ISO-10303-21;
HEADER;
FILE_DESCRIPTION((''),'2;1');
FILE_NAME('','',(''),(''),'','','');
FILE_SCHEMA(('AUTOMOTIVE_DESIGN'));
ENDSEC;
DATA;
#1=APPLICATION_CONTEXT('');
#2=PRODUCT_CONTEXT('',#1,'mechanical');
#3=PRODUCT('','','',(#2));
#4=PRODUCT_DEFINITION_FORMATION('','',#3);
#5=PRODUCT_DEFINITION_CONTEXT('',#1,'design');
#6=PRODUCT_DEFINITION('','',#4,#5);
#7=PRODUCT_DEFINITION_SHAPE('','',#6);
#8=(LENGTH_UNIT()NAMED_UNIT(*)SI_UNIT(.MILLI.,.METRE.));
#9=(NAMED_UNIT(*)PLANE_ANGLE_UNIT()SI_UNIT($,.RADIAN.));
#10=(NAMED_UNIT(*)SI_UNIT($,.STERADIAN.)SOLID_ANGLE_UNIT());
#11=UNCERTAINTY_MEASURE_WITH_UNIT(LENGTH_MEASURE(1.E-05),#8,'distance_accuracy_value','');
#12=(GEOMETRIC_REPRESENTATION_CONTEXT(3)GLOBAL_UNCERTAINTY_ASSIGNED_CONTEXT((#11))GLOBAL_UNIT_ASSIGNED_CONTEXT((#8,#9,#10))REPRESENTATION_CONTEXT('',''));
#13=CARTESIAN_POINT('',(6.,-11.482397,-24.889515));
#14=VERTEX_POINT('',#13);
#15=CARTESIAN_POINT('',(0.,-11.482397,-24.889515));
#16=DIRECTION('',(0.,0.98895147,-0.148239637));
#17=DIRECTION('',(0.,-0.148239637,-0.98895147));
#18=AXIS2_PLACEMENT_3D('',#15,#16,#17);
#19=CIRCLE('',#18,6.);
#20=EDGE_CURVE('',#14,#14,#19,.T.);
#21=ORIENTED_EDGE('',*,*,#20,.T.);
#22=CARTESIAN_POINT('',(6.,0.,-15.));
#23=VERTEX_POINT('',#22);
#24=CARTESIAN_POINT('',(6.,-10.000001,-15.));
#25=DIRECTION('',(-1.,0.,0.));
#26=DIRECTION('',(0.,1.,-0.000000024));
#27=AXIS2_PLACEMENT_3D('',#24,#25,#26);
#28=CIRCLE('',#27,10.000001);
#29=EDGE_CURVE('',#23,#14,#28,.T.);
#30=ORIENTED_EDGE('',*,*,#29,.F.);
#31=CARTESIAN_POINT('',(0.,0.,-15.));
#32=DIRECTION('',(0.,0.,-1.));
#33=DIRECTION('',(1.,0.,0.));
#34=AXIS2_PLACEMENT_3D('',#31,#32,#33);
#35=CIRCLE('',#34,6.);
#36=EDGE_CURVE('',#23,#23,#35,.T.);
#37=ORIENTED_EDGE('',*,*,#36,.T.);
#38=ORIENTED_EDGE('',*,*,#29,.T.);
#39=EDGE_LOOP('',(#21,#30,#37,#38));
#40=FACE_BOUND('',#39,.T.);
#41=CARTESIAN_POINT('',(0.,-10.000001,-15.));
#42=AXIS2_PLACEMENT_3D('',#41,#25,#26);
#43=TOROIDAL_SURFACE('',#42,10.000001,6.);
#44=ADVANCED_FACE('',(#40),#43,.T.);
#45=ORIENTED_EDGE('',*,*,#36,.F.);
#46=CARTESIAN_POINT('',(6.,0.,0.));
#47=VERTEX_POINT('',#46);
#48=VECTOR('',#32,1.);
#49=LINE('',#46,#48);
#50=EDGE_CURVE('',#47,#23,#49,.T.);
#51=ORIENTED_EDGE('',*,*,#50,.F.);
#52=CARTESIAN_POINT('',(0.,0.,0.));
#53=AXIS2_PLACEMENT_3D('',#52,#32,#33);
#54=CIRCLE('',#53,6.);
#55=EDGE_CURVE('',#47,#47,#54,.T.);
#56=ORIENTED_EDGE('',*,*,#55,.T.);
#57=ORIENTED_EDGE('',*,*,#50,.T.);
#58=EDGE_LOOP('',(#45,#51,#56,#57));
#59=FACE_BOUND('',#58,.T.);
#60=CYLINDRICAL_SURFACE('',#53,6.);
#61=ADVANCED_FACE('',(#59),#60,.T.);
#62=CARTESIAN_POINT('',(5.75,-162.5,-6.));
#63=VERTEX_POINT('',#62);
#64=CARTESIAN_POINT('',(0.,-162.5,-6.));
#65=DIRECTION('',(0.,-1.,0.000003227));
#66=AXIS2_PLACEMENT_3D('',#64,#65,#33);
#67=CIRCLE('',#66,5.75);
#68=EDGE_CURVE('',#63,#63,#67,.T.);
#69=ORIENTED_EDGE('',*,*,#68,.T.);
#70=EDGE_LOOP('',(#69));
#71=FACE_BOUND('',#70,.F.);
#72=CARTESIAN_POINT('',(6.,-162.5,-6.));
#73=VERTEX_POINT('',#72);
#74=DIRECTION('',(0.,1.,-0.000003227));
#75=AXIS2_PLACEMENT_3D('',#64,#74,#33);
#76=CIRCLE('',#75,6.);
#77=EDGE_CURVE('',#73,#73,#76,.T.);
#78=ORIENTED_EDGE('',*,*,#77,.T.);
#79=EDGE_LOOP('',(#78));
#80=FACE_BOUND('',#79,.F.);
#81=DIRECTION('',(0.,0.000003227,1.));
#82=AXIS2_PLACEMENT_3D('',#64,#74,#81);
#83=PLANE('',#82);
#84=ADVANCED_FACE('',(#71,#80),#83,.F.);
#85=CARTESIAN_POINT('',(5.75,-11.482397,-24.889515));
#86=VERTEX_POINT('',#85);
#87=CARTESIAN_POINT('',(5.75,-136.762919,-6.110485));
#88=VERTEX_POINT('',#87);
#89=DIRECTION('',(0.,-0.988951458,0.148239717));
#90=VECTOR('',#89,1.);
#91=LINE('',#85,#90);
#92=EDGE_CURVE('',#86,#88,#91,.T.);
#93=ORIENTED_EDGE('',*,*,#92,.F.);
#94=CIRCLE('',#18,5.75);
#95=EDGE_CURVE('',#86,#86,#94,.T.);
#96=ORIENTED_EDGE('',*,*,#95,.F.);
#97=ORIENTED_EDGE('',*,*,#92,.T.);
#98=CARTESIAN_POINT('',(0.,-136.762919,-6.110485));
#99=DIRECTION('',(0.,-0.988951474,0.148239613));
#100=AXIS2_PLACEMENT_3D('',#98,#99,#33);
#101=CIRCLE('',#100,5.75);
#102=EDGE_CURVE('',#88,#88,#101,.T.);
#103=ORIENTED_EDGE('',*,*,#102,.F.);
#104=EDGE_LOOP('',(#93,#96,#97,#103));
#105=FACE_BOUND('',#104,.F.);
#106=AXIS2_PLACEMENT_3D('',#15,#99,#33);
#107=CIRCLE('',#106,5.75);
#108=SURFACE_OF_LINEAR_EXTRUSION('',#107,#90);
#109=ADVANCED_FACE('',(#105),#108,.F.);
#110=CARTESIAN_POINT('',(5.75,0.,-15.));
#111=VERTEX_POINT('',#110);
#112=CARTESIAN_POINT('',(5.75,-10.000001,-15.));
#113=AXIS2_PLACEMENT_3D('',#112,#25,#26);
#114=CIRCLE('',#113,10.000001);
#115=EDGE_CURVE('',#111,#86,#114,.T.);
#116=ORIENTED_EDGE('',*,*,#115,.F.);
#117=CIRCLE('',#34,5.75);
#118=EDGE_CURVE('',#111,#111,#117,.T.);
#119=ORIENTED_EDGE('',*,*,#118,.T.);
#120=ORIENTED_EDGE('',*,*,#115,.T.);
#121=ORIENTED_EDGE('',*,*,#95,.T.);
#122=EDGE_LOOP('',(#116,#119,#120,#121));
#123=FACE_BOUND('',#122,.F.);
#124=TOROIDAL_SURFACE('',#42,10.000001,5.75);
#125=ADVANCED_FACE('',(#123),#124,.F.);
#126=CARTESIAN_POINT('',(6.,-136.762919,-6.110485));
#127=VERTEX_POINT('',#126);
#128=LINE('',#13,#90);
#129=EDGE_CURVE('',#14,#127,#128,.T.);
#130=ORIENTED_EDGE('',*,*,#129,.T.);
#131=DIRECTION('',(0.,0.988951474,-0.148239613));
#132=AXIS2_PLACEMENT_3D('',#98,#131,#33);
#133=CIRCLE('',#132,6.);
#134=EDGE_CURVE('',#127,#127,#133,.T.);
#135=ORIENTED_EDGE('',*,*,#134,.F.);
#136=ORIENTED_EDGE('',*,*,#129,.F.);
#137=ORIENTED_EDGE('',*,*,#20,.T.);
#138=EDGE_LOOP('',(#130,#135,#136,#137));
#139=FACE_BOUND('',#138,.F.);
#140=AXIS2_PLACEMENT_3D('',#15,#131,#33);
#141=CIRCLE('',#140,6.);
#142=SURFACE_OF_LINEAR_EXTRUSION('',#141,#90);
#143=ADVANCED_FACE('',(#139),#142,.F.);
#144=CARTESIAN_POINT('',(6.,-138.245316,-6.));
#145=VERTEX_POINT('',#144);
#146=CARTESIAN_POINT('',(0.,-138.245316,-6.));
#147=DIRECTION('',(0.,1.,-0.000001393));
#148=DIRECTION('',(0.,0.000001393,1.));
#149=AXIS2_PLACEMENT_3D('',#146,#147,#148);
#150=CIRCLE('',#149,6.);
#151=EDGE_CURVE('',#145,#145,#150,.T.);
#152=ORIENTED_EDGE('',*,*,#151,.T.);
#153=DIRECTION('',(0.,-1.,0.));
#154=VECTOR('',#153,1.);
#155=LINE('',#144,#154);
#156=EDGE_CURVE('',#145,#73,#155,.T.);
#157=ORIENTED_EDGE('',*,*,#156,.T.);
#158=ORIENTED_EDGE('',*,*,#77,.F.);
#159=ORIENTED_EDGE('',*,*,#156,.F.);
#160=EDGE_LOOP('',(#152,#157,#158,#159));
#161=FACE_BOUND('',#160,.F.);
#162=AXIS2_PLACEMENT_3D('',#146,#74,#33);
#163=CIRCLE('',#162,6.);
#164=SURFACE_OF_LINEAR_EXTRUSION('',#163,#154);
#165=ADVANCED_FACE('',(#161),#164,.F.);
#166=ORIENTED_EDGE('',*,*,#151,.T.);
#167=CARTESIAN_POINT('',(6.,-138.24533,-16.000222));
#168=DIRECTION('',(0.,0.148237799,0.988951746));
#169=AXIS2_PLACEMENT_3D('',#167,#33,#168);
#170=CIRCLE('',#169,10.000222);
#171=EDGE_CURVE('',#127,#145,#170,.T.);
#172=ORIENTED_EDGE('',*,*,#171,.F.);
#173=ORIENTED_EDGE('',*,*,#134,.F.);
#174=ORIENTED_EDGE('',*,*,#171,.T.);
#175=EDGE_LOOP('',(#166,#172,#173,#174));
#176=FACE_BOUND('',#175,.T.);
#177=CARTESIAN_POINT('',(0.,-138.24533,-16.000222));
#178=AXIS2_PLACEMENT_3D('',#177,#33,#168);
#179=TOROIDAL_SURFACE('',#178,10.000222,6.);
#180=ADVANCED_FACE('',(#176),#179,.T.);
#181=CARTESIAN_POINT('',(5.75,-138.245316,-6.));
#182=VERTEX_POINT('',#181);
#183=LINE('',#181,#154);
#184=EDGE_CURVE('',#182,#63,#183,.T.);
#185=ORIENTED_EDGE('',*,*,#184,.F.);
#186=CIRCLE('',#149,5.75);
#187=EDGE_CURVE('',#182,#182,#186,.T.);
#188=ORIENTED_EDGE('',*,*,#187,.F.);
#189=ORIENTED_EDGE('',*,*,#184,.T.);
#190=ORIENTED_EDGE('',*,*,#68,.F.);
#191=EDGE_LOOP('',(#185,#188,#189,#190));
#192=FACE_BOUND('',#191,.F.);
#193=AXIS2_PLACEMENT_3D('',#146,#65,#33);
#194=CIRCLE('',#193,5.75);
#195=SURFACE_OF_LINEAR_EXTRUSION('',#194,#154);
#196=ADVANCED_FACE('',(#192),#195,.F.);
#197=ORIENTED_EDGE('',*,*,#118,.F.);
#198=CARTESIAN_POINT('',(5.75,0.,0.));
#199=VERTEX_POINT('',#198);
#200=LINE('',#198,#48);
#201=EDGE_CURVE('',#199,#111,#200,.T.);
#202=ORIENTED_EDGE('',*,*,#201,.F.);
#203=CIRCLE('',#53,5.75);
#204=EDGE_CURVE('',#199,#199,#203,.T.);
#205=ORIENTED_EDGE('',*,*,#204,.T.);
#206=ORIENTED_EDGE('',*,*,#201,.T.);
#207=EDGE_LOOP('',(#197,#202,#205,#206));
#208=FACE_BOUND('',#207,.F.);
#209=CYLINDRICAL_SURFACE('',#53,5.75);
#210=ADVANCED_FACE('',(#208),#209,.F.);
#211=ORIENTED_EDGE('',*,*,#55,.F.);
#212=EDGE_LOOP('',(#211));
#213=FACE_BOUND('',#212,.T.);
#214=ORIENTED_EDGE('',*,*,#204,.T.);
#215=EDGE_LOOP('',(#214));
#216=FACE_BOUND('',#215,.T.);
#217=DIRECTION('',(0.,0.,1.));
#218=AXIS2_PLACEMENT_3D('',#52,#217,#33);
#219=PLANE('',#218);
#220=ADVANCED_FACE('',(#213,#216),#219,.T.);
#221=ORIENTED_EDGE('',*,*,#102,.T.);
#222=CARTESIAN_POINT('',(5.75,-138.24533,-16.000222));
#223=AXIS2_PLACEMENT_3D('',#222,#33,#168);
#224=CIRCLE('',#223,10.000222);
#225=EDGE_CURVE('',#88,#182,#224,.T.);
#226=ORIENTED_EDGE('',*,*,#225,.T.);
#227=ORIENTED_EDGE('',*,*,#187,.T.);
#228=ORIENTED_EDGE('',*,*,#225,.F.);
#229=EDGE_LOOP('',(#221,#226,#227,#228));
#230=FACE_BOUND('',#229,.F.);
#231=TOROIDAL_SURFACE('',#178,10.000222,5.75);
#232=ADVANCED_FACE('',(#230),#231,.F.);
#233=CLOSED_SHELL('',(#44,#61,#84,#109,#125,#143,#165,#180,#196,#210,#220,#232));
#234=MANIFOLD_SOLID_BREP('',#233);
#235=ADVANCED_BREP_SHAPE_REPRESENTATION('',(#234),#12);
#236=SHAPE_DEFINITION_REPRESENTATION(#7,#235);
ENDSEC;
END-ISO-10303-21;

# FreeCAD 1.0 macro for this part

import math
import FreeCAD as App
import Part
import Sketcher
Q = App.Units.Quantity

doc = App.newDocument("Part")
body = doc.addObject("PartDesign::Body", "Body")

sketch1 = doc.addObject("Sketcher::SketchObject", "Sketch")
body.addObject(sketch1)
sketch1.AttachmentSupport = (doc.XY_Plane, [""])
sketch1.MapMode = "FlatFace"
sketch1.addGeometry(Part.Circle(App.Vector(0, 0, 0), App.Vector(0, 0, 1), 6), False)
sketch1.addGeometry(Part.Circle(App.Vector(0, 0, 0), App.Vector(0, 0, 1), 5.75), False)
sketch1.addConstraint(Sketcher.Constraint("Coincident", 0, 3, -1, 1))
sketch1.addConstraint(Sketcher.Constraint("Coincident", 1, 3, -1, 1))
sketch1.addConstraint(Sketcher.Constraint("Diameter", 0, Q("12 mm")))
sketch1.addConstraint(Sketcher.Constraint("Diameter", 1, Q("11.5 mm")))

sketch2 = doc.addObject("Sketcher::SketchObject", "Sketch001")
body.addObject(sketch2)
sketch2.AttachmentSupport = (doc.YZ_Plane, [""])
sketch2.MapMode = "FlatFace"
sketch2.addGeometry(Part.LineSegment(App.Vector(0, 0, 0), App.Vector(0, -15, 0)), False)
sketch2.addGeometry(Part.ArcOfCircle(Part.Circle(App.Vector(-10.000001, -15, 0), App.Vector(0, 0, 1), 10.000001), math.radians(-98.524925), math.radians(-0.000001)), False)
sketch2.addGeometry(Part.LineSegment(App.Vector(-11.482397, -24.889515, 0), App.Vector(-136.762919, -6.110485, 0)), False)
sketch2.addGeometry(Part.ArcOfCircle(Part.Circle(App.Vector(-138.24533, -16.000222, 0), App.Vector(0, 0, 1), 10.000222), math.radians(81.475182), math.radians(89.99992)), False)
sketch2.addGeometry(Part.LineSegment(App.Vector(-138.245316, -6, 0), App.Vector(-162.5, -6, 0)), False)
sketch2.addConstraint(Sketcher.Constraint("Coincident", 0, 2, 1, 2))
sketch2.addConstraint(Sketcher.Constraint("Coincident", 1, 1, 2, 1))
sketch2.addConstraint(Sketcher.Constraint("Coincident", 2, 2, 3, 1))
sketch2.addConstraint(Sketcher.Constraint("Coincident", 3, 2, 4, 1))
sketch2.addConstraint(Sketcher.Constraint("Vertical", 0))
sketch2.addConstraint(Sketcher.Constraint("Horizontal", 4))
sketch2.addConstraint(Sketcher.Constraint("Coincident", 0, 1, -1, 1))
sketch2.addConstraint(Sketcher.Constraint("Radius", 1, Q("10.000001 mm")))
sketch2.addConstraint(Sketcher.Constraint("DistanceY", 0, 2, 0, 1, Q("15 mm")))
sketch2.addConstraint(Sketcher.Constraint("DistanceY", 1, 3, -1, 1, Q("15 mm")))
sketch2.addConstraint(Sketcher.Constraint("DistanceY", 3, 2, -1, 1, Q("6 mm")))
sketch2.addConstraint(Sketcher.Constraint("DistanceX", 4, 2, -1, 1, Q("162.5 mm")))
sketch2.addConstraint(Sketcher.Constraint("Radius", 3, Q("10.000222 mm")))
sketch2.addConstraint(Sketcher.Constraint("DistanceX", 4, 2, 4, 1, Q("24.254684 mm")))
sketch2.addConstraint(Sketcher.Constraint("DistanceX", 3, 3, -1, 1, Q("138.24533 mm")))
sketch2.addConstraint(Sketcher.Constraint("DistanceX", 2, 2, -1, 1, Q("136.762919 mm")))
sketch2.addConstraint(Sketcher.Constraint("DistanceX", 2, 2, 1, 1, Q("125.280522 mm")))
doc.recompute()

additivepipe = doc.addObject("PartDesign::AdditivePipe", "AdditivePipe")
body.addObject(additivepipe)
additivepipe.Profile = sketch1
additivepipe.Spine = (sketch2, ["Edge1", "Edge2", "Edge3", "Edge4", "Edge5"])

doc.recompute()
